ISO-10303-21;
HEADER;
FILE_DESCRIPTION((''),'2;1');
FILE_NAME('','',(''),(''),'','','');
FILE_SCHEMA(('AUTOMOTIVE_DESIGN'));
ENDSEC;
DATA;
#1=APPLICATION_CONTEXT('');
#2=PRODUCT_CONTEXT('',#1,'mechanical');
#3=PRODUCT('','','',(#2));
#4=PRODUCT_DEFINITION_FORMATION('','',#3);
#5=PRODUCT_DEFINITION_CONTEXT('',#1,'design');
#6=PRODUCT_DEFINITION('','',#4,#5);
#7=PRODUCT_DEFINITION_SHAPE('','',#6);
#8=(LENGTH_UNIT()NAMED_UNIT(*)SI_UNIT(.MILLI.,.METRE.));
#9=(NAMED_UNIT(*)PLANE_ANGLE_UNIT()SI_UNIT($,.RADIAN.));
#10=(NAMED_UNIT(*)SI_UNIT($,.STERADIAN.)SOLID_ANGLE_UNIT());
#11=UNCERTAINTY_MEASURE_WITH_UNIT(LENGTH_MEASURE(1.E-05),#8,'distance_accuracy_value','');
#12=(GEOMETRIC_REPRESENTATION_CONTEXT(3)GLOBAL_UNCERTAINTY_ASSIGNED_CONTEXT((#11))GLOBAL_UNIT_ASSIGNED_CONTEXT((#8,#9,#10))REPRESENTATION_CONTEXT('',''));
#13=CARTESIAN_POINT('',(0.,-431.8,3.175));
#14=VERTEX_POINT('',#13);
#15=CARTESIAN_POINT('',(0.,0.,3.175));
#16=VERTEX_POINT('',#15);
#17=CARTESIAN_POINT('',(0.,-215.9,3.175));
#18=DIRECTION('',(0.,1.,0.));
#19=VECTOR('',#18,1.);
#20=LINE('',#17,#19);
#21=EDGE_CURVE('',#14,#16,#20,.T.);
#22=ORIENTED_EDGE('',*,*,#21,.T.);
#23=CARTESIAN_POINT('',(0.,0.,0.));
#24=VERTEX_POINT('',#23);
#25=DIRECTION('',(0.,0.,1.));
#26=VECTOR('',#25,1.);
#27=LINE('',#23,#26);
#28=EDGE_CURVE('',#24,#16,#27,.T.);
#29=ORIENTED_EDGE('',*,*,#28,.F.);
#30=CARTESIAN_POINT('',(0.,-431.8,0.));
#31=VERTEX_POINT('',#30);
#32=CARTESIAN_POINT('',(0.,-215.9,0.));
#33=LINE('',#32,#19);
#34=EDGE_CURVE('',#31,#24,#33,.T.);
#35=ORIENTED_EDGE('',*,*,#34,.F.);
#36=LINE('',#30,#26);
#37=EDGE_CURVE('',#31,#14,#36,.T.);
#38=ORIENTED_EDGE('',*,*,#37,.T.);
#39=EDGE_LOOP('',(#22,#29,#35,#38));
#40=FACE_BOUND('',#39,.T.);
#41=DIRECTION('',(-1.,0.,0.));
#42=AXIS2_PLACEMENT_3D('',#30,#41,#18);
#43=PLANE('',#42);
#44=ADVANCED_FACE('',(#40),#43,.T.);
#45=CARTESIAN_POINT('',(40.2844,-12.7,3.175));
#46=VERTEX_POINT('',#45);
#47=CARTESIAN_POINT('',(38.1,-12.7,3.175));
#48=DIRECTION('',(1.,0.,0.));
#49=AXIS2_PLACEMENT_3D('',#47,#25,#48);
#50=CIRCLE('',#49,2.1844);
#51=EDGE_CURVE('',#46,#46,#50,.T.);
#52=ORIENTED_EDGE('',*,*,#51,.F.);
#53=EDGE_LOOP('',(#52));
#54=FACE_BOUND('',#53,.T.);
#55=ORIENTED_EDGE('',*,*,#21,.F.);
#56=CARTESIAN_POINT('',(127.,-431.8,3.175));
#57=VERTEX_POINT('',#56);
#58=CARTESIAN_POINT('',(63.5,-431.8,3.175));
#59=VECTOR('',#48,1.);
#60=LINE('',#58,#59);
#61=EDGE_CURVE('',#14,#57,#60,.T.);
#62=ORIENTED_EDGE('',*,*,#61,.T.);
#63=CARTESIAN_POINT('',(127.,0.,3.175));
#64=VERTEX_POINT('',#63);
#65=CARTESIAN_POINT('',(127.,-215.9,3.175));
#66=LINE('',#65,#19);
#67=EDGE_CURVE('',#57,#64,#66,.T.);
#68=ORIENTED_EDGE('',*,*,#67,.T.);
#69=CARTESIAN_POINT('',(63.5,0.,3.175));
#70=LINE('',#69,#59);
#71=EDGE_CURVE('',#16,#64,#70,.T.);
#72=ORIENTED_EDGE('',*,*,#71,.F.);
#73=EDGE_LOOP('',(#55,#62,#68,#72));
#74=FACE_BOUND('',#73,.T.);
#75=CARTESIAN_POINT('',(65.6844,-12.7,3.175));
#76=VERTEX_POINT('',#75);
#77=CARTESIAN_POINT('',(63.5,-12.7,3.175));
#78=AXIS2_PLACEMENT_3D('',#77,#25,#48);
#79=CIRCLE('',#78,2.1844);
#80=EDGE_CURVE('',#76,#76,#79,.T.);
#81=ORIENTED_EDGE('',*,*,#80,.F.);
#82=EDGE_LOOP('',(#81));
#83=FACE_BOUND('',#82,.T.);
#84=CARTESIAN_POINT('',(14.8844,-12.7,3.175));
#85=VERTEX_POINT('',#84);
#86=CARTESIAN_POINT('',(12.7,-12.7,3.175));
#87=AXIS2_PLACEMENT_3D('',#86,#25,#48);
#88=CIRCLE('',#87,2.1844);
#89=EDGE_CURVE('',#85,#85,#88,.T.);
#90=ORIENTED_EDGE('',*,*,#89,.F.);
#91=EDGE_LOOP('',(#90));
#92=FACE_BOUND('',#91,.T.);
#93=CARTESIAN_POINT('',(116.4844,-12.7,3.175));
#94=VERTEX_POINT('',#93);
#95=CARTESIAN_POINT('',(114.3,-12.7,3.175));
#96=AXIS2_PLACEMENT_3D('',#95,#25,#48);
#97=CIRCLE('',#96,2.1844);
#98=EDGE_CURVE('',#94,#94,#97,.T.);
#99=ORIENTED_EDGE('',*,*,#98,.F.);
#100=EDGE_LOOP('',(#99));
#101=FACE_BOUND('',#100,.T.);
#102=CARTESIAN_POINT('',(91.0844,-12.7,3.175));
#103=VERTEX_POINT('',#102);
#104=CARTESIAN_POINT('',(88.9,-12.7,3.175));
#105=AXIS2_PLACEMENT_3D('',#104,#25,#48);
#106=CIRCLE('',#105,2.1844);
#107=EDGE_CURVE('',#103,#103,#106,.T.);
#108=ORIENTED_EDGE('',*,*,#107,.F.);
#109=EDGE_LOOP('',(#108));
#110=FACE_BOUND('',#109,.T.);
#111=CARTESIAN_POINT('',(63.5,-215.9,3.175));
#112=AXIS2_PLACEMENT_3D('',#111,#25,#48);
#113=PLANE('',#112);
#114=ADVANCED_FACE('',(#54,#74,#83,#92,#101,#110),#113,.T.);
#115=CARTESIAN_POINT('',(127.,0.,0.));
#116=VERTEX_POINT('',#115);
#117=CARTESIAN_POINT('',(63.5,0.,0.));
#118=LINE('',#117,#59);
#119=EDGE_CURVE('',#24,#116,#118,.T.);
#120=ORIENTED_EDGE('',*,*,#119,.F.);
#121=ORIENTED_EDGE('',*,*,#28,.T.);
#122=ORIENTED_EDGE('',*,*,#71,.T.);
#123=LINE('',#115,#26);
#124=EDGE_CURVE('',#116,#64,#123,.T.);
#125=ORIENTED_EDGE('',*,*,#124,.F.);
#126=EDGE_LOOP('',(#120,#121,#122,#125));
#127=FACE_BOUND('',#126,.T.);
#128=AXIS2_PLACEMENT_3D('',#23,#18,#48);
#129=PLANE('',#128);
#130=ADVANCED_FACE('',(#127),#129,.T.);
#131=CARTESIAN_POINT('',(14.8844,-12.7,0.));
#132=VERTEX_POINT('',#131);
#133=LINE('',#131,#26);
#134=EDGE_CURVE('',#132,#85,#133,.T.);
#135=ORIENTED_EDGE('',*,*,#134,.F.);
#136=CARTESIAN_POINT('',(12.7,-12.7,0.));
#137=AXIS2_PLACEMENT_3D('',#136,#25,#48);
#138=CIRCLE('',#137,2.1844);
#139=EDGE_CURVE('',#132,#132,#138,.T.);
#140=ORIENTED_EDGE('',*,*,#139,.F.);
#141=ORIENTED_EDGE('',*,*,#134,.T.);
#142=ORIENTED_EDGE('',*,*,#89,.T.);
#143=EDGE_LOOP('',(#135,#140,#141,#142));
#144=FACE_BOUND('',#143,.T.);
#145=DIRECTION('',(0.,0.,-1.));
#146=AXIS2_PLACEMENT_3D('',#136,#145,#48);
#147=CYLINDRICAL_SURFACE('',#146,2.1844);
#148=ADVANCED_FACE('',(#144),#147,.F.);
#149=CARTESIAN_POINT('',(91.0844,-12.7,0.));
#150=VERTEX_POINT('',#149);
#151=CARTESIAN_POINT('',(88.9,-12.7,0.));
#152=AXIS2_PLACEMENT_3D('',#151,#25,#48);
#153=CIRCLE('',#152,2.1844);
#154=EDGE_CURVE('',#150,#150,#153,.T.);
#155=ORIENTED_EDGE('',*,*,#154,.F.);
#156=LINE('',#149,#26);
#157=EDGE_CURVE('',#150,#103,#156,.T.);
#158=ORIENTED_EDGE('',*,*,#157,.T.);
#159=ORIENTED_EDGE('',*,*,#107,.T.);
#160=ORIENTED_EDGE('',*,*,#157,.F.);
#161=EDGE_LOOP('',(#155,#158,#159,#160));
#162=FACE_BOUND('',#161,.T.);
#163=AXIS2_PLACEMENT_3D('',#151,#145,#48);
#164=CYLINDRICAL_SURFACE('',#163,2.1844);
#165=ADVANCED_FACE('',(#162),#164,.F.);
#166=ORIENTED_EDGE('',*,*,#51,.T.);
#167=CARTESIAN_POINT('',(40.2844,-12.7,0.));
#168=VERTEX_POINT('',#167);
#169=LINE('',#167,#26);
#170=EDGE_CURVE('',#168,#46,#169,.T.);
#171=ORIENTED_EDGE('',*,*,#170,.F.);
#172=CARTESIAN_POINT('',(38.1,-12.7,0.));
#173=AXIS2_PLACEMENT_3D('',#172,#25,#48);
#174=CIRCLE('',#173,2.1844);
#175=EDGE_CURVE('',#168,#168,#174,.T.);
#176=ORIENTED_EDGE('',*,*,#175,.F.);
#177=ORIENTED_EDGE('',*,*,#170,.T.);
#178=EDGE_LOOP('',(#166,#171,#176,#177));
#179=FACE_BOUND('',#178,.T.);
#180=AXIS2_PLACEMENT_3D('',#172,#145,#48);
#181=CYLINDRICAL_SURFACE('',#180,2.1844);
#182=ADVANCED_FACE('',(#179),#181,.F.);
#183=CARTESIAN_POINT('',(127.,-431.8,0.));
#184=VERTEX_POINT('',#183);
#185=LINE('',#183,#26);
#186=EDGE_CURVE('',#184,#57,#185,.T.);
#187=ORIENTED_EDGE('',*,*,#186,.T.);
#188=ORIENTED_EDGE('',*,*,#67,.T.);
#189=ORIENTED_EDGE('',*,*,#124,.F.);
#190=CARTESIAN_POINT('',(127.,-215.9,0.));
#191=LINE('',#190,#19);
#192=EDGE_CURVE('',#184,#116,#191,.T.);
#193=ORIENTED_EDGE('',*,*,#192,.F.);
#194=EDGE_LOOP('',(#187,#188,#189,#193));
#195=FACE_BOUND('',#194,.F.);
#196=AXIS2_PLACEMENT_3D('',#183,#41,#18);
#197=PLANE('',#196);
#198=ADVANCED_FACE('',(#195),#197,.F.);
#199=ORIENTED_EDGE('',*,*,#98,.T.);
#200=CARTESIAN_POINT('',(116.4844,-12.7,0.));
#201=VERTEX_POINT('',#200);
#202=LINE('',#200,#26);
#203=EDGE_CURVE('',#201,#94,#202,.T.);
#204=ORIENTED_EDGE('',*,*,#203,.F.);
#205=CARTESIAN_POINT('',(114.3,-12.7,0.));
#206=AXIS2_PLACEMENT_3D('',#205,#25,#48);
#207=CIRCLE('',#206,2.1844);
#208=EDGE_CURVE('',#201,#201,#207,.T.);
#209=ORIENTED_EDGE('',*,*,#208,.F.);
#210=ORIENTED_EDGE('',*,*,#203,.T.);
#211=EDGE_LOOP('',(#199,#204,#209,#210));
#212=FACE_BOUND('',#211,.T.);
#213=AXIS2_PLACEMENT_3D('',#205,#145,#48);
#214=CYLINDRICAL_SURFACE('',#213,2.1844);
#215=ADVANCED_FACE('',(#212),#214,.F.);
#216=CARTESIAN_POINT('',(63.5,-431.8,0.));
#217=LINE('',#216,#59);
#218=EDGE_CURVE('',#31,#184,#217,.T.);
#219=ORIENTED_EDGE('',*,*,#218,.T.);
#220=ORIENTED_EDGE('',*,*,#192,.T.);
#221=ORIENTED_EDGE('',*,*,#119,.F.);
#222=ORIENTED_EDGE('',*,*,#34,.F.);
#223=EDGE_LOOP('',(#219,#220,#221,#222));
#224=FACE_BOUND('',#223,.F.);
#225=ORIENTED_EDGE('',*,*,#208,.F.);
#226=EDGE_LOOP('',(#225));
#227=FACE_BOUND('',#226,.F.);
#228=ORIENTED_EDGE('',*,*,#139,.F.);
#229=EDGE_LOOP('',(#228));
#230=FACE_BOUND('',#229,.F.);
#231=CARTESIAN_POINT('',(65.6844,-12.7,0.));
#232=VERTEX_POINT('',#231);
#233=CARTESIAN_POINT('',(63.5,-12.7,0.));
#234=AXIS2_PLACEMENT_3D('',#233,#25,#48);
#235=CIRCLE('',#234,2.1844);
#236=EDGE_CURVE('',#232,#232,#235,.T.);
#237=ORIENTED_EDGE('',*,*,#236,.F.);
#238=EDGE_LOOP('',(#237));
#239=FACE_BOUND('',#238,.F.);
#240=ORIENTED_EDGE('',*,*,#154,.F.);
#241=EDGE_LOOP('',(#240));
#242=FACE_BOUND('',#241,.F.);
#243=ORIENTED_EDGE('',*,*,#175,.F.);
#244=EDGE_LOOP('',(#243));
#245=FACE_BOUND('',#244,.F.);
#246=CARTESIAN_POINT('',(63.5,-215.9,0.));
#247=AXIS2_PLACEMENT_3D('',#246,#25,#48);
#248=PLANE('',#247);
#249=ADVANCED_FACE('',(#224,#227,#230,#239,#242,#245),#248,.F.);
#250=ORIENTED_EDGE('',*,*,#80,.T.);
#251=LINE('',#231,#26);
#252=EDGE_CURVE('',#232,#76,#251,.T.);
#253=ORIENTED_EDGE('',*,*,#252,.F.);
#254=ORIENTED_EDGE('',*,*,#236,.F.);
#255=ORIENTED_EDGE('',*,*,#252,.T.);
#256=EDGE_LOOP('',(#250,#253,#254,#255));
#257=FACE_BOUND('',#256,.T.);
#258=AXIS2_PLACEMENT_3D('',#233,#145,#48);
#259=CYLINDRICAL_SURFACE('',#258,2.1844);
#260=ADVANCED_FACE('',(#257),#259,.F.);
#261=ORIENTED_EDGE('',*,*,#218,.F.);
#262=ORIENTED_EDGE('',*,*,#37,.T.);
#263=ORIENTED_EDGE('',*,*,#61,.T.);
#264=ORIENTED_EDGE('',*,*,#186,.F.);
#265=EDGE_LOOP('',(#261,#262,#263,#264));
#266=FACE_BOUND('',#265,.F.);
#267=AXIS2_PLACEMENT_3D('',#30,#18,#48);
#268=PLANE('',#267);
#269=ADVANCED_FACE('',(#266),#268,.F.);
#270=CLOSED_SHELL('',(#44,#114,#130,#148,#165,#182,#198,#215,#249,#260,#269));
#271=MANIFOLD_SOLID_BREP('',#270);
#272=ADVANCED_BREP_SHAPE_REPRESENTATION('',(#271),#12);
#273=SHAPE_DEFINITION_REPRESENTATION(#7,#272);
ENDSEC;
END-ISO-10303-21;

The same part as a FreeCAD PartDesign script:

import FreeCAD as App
import Part
import Sketcher

V = App.Vector
Q = App.Units.Quantity


def add_polygon(sketch, points):
    """Adds a closed chain of lines whose ends are joined by coincident constraints."""
    first, n = sketch.GeometryCount, len(points)
    for a, b in zip(points, points[1:] + points[:1]):
        sketch.addGeometry(Part.LineSegment(App.Vector(*a, 0), App.Vector(*b, 0)), False)
    for i in range(n):
        sketch.addConstraint(Sketcher.Constraint("Coincident", first + i, 2, first + (i + 1) % n, 1))

doc = App.newDocument("Part")
body = doc.addObject("PartDesign::Body", "Body")

# Sketch on XY plane
sketch1 = body.newObject("Sketcher::SketchObject", "Sketch")
sketch1.AttachmentSupport = (doc.getObject("XY_Plane"), [""])
sketch1.MapMode = "FlatFace"
add_polygon(sketch1, [(0, 0), (0, -431.8), (127, -431.8), (127, 0)])  # lines 0-3
sketch1.addGeometry(Part.Circle(V(12.7, -12.7, 0), V(0, 0, 1), 2.2), False)  # 4
sketch1.addGeometry(Part.Circle(V(38.1, -12.7, 0), V(0, 0, 1), 2.2), False)  # 5
sketch1.addGeometry(Part.Circle(V(63.5, -12.7, 0), V(0, 0, 1), 2.2), False)  # 6
sketch1.addGeometry(Part.Circle(V(88.9, -12.7, 0), V(0, 0, 1), 2.2), False)  # 7
sketch1.addGeometry(Part.Circle(V(114.3, -12.7, 0), V(0, 0, 1), 2.2), False)  # 8
sketch1.addConstraint([
    Sketcher.Constraint("Vertical", 0),
    Sketcher.Constraint("Horizontal", 1),
    Sketcher.Constraint("Vertical", 2),
    Sketcher.Constraint("Horizontal", 3),
    Sketcher.Constraint("Coincident", 3, 2, -1, 1),
    Sketcher.Constraint("Equal", 4, 5),
    Sketcher.Constraint("Equal", 5, 6),
    Sketcher.Constraint("Equal", 6, 7),
    Sketcher.Constraint("Equal", 7, 8),
    Sketcher.Constraint("Horizontal", 4, 3, 5, 3),
    Sketcher.Constraint("Horizontal", 5, 3, 6, 3),
    Sketcher.Constraint("Horizontal", 6, 3, 7, 3),
    Sketcher.Constraint("Horizontal", 7, 3, 8, 3),
    Sketcher.Constraint("DistanceX", 1, 1, 1, 2, Q("5 in")),
    Sketcher.Constraint("DistanceY", 0, 2, 0, 1, Q("17 in")),
    Sketcher.Constraint("Diameter", 4, Q("0.172 in")),
    Sketcher.Constraint("DistanceX", 4, 3, 5, 3, Q("1 in")),
    Sketcher.Constraint("DistanceX", 5, 3, 6, 3, Q("1 in")),
    Sketcher.Constraint("DistanceX", 6, 3, 7, 3, Q("1 in")),
    Sketcher.Constraint("DistanceX", 7, 3, 8, 3, Q("1 in")),
    Sketcher.Constraint("DistanceX", -1, 1, 4, 3, Q("0.5 in")),
    Sketcher.Constraint("DistanceY", 4, 3, -1, 1, Q("0.5 in")),
])
pad1 = body.newObject("PartDesign::Pad", "Pad")
pad1.Profile = sketch1
pad1.Length = Q("0.125 in")

doc.recompute()
